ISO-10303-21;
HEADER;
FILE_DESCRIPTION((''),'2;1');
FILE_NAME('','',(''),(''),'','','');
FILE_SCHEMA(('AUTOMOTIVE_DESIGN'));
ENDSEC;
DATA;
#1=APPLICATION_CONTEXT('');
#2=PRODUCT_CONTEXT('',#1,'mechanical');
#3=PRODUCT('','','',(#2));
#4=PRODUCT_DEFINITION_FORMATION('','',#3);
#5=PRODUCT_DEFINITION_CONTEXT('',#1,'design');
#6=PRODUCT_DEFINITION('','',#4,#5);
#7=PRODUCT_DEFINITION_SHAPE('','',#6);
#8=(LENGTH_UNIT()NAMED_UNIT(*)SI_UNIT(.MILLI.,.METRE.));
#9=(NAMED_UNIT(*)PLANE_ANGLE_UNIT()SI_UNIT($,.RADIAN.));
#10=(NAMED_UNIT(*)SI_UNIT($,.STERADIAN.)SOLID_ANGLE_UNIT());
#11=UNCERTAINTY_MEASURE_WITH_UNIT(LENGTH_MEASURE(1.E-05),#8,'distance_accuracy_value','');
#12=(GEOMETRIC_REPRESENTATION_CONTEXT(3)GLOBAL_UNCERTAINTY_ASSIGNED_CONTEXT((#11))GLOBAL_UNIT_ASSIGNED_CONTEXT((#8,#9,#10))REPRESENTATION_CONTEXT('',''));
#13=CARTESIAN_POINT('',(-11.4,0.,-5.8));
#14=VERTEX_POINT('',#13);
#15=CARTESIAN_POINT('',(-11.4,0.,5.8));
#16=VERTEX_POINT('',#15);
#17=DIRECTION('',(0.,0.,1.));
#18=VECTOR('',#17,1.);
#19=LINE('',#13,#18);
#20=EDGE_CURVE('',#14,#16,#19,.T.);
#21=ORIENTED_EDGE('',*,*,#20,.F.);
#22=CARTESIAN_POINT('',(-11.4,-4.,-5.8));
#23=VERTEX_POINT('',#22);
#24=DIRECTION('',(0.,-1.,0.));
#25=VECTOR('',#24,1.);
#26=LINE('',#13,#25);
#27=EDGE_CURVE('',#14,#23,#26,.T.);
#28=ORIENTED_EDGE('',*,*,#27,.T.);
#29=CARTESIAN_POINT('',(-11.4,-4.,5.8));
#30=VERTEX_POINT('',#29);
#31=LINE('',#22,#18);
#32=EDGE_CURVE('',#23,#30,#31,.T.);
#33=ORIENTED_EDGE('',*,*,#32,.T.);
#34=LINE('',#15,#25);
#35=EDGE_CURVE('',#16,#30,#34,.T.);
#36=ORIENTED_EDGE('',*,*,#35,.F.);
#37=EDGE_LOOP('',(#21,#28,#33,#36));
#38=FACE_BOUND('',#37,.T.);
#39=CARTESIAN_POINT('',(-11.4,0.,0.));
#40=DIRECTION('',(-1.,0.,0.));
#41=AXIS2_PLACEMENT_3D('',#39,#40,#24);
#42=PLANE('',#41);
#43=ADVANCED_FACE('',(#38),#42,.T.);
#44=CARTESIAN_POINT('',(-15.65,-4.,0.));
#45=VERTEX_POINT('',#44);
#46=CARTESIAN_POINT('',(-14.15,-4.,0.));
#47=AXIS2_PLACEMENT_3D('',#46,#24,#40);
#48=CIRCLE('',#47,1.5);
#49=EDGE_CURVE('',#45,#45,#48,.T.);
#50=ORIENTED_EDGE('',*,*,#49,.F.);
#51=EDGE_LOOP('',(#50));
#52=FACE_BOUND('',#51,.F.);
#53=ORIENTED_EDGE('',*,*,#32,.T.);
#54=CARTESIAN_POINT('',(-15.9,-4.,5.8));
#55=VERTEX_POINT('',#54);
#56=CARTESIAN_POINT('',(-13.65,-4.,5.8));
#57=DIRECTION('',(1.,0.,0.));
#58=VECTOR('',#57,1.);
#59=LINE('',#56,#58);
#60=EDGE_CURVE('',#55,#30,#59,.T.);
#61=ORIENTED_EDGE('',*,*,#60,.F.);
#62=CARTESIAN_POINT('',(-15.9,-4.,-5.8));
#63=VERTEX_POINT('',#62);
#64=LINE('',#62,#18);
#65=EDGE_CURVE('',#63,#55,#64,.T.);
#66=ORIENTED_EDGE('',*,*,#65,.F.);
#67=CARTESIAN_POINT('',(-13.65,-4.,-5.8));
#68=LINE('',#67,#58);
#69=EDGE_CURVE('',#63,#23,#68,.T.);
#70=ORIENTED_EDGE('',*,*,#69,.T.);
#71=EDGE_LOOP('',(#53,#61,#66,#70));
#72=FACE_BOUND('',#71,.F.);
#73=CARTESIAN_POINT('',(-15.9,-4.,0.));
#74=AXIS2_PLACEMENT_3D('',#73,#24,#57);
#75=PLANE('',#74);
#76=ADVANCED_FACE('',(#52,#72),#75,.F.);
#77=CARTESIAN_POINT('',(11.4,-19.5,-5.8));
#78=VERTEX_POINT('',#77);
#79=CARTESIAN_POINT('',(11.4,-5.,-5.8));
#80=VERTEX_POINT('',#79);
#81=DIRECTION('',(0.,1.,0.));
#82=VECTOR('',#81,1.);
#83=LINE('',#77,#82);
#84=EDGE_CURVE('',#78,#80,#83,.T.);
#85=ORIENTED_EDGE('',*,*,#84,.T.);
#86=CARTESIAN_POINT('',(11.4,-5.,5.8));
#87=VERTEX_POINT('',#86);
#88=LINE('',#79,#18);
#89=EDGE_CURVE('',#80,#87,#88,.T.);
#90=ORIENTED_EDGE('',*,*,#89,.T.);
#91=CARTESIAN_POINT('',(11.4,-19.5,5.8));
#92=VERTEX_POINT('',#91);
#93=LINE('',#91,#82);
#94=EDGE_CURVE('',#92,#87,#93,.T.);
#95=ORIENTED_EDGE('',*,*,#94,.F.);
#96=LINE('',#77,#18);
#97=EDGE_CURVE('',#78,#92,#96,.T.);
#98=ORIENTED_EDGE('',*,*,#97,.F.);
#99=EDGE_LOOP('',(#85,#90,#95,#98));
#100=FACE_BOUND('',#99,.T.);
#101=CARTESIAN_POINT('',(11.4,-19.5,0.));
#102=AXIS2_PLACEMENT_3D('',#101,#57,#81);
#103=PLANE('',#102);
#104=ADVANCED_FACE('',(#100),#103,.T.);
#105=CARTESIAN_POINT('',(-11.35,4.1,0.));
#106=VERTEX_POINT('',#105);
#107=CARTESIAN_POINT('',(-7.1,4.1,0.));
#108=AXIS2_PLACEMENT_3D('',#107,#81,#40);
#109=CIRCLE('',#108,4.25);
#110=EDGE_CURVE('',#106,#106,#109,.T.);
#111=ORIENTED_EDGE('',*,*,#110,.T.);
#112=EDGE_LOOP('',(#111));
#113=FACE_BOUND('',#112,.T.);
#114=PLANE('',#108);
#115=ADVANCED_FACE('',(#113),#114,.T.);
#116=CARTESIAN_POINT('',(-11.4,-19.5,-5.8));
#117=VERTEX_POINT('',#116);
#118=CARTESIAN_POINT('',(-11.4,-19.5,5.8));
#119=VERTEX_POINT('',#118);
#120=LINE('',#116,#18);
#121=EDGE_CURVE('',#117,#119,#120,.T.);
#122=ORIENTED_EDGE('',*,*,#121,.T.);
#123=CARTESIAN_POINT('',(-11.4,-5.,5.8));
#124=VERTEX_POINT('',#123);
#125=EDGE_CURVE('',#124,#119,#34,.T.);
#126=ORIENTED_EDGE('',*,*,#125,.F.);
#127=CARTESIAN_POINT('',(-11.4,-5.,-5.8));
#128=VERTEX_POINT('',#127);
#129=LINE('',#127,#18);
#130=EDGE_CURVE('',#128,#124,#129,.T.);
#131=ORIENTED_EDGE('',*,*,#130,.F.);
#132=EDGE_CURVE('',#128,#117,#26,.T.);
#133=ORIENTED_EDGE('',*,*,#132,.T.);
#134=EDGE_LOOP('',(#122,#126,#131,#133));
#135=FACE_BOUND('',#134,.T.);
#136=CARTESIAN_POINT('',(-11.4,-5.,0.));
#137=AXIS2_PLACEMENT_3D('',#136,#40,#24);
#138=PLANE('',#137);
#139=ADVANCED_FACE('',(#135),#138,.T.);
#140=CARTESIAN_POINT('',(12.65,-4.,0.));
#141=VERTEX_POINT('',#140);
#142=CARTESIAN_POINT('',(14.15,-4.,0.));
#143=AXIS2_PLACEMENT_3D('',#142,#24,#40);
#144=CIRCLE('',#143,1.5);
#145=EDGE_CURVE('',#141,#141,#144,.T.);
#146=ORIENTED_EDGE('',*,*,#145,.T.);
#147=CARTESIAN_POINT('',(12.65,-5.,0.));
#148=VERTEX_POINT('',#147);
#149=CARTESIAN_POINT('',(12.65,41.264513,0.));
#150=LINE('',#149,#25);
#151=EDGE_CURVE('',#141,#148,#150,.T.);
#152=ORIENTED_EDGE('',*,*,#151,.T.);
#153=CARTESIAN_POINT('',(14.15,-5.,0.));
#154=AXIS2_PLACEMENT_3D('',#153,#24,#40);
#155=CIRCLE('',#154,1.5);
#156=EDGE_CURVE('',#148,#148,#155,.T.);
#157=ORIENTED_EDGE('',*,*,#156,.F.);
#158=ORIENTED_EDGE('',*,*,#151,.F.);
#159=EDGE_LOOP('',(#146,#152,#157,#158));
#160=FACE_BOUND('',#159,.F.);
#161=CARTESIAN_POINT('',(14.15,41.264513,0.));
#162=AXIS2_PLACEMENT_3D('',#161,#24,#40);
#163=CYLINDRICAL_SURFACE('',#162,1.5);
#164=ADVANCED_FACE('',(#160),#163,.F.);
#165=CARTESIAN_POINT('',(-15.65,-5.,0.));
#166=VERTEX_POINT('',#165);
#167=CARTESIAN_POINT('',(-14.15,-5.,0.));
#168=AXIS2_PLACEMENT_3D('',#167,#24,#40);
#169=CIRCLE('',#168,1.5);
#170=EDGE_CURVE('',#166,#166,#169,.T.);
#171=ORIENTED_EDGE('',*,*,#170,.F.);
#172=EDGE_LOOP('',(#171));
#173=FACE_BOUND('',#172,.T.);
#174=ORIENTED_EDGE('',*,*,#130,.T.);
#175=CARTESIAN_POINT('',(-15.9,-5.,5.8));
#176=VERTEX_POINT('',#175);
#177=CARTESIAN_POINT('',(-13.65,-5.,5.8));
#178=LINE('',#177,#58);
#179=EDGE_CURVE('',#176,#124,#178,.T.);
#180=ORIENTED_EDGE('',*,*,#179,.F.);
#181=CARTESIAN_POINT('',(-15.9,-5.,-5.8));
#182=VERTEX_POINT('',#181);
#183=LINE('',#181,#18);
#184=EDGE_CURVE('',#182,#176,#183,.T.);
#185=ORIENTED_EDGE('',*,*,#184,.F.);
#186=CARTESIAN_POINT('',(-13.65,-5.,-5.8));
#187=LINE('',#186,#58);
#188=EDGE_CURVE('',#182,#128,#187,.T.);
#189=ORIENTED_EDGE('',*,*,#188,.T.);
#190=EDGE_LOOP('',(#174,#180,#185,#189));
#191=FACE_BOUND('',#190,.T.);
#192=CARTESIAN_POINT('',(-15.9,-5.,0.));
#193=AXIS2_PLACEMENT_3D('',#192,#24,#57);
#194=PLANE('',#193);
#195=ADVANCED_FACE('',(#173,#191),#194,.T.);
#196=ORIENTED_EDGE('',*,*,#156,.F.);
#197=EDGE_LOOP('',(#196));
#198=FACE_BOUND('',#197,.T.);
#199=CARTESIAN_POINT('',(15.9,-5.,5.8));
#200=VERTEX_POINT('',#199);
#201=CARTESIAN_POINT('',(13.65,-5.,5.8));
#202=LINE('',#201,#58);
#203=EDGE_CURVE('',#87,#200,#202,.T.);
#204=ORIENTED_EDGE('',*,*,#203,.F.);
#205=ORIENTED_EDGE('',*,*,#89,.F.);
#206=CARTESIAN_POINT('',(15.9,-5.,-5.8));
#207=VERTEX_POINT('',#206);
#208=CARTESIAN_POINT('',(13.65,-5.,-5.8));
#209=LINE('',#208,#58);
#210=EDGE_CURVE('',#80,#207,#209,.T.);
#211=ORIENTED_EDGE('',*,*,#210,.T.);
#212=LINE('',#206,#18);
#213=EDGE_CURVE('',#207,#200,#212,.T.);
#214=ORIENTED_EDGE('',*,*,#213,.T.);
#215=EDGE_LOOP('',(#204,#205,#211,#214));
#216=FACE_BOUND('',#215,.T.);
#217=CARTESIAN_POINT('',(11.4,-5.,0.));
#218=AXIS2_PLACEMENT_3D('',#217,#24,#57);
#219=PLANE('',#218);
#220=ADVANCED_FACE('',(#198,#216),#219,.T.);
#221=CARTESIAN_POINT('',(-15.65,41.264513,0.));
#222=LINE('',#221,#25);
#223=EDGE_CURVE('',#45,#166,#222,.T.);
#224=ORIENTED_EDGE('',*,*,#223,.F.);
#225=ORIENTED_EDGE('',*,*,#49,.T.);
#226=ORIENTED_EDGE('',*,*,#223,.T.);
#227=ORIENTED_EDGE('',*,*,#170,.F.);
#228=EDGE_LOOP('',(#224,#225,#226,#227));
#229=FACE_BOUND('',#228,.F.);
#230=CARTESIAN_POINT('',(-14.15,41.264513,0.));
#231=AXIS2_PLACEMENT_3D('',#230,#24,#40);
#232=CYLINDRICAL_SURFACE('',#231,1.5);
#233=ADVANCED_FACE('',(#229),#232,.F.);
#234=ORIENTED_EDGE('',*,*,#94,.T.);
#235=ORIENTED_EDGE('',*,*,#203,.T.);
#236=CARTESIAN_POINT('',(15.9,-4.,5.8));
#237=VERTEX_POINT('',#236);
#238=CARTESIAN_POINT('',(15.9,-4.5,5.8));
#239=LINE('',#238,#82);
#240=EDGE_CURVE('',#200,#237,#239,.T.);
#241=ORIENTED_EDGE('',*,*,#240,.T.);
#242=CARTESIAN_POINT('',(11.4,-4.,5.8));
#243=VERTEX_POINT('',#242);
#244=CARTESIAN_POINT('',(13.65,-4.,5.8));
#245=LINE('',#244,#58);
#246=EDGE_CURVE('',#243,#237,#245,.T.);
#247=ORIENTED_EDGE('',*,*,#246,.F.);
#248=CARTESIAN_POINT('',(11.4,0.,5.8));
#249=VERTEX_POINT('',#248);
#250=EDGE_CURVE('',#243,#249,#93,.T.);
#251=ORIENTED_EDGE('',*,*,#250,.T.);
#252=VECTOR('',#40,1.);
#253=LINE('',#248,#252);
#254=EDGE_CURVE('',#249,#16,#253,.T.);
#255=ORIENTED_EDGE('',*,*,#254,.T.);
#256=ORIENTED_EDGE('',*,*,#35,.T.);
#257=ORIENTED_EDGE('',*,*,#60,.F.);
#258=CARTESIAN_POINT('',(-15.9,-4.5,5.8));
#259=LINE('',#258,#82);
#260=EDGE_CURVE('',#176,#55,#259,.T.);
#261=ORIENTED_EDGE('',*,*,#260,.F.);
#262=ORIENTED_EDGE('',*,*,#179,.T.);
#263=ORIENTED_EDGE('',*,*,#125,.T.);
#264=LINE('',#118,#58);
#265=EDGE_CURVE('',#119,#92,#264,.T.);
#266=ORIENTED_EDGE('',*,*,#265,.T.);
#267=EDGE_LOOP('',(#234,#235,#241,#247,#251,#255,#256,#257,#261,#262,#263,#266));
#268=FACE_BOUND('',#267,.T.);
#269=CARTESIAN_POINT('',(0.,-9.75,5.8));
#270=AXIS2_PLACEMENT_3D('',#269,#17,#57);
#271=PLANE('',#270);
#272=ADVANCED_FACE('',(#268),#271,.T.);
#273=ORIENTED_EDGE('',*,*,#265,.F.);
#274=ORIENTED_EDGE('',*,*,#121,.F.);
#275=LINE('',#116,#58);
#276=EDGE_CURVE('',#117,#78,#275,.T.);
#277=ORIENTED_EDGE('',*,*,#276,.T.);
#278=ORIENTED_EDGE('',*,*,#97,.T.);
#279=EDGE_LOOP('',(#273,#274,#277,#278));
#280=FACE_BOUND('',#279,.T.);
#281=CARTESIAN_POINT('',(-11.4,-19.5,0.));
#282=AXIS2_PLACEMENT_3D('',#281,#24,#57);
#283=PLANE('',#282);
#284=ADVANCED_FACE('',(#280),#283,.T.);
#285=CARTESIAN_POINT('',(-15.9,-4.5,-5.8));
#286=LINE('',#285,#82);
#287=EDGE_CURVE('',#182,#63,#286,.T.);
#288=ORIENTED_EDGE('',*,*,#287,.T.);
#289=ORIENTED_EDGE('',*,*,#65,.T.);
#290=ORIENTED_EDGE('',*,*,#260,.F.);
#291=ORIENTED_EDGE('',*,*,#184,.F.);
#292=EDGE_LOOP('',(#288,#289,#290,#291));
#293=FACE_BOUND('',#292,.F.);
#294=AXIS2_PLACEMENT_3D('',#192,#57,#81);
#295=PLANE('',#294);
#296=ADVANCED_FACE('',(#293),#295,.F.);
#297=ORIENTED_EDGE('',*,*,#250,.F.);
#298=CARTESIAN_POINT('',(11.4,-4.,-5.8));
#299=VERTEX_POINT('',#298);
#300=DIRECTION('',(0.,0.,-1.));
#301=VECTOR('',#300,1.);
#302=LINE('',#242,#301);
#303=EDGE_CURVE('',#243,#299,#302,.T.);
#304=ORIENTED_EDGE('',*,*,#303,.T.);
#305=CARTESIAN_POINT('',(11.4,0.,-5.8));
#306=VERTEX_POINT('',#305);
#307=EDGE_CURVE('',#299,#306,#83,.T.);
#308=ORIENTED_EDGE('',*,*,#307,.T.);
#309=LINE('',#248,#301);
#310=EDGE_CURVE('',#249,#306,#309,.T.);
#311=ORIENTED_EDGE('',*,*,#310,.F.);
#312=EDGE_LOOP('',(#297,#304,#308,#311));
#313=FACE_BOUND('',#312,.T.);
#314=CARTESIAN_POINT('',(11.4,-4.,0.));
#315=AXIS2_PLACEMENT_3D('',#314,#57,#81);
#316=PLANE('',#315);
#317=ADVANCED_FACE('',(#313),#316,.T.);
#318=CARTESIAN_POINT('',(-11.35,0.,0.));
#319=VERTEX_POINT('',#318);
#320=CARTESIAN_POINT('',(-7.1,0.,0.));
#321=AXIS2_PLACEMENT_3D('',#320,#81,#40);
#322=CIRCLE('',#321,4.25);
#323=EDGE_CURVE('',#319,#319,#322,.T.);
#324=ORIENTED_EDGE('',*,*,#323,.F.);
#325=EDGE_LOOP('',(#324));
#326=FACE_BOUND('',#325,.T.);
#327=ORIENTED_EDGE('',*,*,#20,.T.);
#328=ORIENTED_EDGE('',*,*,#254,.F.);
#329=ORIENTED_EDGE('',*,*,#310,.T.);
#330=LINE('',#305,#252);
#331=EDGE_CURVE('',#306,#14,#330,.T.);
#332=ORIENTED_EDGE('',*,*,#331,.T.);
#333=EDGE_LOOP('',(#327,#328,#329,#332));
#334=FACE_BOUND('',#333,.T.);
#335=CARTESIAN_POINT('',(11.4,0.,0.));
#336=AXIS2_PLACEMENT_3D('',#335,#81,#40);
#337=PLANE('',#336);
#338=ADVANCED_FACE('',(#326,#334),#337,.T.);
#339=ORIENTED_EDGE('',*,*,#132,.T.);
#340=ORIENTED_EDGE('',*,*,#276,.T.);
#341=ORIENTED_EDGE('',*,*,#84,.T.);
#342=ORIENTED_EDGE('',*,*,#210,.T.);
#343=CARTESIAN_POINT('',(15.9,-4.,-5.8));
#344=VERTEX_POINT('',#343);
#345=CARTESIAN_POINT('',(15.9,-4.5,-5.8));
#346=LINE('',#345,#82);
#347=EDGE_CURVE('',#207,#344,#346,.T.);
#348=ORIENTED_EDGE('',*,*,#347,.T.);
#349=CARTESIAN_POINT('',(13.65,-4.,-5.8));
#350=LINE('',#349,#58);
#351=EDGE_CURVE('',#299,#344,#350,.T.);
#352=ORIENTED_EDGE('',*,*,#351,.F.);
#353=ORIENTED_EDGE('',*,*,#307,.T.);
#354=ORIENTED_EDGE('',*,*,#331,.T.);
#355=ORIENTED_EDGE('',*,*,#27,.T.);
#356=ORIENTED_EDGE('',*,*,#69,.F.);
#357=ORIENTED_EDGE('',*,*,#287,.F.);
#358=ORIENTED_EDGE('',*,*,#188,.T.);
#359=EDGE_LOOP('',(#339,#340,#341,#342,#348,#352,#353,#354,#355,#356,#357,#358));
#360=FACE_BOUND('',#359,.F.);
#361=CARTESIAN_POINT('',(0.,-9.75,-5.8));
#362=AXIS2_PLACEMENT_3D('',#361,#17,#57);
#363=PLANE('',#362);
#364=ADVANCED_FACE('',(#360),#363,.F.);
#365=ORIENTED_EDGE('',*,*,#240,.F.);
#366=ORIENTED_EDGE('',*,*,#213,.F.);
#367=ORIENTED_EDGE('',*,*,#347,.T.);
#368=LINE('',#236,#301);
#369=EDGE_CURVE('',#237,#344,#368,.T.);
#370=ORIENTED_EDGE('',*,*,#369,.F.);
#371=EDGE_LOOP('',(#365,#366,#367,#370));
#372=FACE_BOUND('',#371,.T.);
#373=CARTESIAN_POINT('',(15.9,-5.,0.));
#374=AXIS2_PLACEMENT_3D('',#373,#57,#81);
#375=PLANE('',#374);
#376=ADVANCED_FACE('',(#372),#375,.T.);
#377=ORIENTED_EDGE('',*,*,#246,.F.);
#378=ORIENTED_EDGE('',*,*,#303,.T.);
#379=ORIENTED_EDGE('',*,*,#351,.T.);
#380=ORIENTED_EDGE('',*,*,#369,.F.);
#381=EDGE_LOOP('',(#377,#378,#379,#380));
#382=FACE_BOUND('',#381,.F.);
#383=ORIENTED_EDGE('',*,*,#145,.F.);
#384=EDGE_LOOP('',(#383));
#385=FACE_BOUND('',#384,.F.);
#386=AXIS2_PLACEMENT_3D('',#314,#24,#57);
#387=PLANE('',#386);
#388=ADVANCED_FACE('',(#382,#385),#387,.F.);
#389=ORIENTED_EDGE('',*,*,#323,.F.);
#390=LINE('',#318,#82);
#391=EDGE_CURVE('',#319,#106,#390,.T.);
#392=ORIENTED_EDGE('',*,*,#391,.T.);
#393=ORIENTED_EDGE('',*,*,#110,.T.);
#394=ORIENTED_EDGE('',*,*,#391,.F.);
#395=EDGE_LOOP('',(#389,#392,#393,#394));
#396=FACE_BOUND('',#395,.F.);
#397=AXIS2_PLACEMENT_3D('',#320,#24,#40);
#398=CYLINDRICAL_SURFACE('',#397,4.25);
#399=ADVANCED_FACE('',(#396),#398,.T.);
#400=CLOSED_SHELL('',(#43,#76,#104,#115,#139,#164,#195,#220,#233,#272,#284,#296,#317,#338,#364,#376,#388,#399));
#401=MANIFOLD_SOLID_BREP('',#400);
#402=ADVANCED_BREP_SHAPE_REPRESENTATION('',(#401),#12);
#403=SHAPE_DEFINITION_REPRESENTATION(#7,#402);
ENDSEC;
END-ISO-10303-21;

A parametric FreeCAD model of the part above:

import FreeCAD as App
import Part
import Sketcher

V = App.Vector

doc = App.newDocument("Part")
body = doc.addObject("PartDesign::Body", "Body")

# Sketch on XY plane
sketch1 = doc.addObject("Sketcher::SketchObject", "Sketch")
body.addObject(sketch1)
sketch1.AttachmentSupport = (doc.XY_Plane, [""])
sketch1.MapMode = "FlatFace"
sketch1.addGeometry([
    Part.LineSegment(V(11.4, 0, 0), V(-11.4, 0, 0)),  # 0
    Part.LineSegment(V(-11.4, 0, 0), V(-11.4, -4, 0)),  # 1
    Part.LineSegment(V(-11.4, -4, 0), V(-15.9, -4, 0)),  # 2
    Part.LineSegment(V(-15.9, -4, 0), V(-15.9, -5, 0)),  # 3
    Part.LineSegment(V(-15.9, -5, 0), V(-11.4, -5, 0)),  # 4
    Part.LineSegment(V(-11.4, -5, 0), V(-11.4, -19.5, 0)),  # 5
    Part.LineSegment(V(-11.4, -19.5, 0), V(11.4, -19.5, 0)),  # 6
    Part.LineSegment(V(11.4, -19.5, 0), V(11.4, -5, 0)),  # 7
    Part.LineSegment(V(11.4, -5, 0), V(15.9, -5, 0)),  # 8
    Part.LineSegment(V(15.9, -5, 0), V(15.9, -4, 0)),  # 9
    Part.LineSegment(V(15.9, -4, 0), V(11.4, -4, 0)),  # 10
    Part.LineSegment(V(11.4, -4, 0), V(11.4, 0, 0)),  # 11
], False)
sketch1.addConstraint([
    Sketcher.Constraint("Coincident", 0, 2, 1, 1),
    Sketcher.Constraint("Coincident", 1, 2, 2, 1),
    Sketcher.Constraint("Coincident", 2, 2, 3, 1),
    Sketcher.Constraint("Coincident", 3, 2, 4, 1),
    Sketcher.Constraint("Coincident", 4, 2, 5, 1),
    Sketcher.Constraint("Coincident", 5, 2, 6, 1),
    Sketcher.Constraint("Coincident", 6, 2, 7, 1),
    Sketcher.Constraint("Coincident", 7, 2, 8, 1),
    Sketcher.Constraint("Coincident", 8, 2, 9, 1),
    Sketcher.Constraint("Coincident", 9, 2, 10, 1),
    Sketcher.Constraint("Coincident", 10, 2, 11, 1),
    Sketcher.Constraint("Coincident", 11, 2, 0, 1),
    Sketcher.Constraint("Horizontal", 0),
    Sketcher.Constraint("Vertical", 1),
    Sketcher.Constraint("Horizontal", 2),
    Sketcher.Constraint("Vertical", 3),
    Sketcher.Constraint("Horizontal", 4),
    Sketcher.Constraint("Vertical", 5),
    Sketcher.Constraint("Horizontal", 6),
    Sketcher.Constraint("Vertical", 7),
    Sketcher.Constraint("Horizontal", 8),
    Sketcher.Constraint("Vertical", 9),
    Sketcher.Constraint("Horizontal", 10),
    Sketcher.Constraint("Vertical", 11),
    Sketcher.Constraint("Symmetric", 0, 2, 11, 2, -1, 1),
    Sketcher.Constraint("Symmetric", 4, 2, 7, 2, -2),
    Sketcher.Constraint("Symmetric", 2, 2, 9, 2, -2),
    Sketcher.Constraint("Vertical", 1, 2, 4, 2),
    Sketcher.Constraint("DistanceY", 1, 2, 1, 1, 4.0),
    Sketcher.Constraint("DistanceY", 3, 2, 3, 1, 1.0),
    Sketcher.Constraint("DistanceX", 0, 2, 0, 1, 22.8),
    Sketcher.Constraint("DistanceX", 2, 2, 2, 1, 4.5),
    Sketcher.Constraint("DistanceY", 5, 2, 5, 1, 14.5),
])
pad1 = doc.addObject("PartDesign::Pad", "Pad")
body.addObject(pad1)
pad1.Profile = sketch1
pad1.Length = 11.6
pad1.Midplane = True

# Sketch on XZ plane
sketch2 = doc.addObject("Sketcher::SketchObject", "Sketch001")
body.addObject(sketch2)
sketch2.AttachmentSupport = (doc.XZ_Plane, [""])
sketch2.MapMode = "FlatFace"
sketch2.addGeometry(Part.Circle(V(-7.1, 0, 0), V(0, 0, 1), 4.2), False)
sketch2.addConstraint([
    Sketcher.Constraint("PointOnObject", 0, 3, -1),
    Sketcher.Constraint("Diameter", 0, 8.5),
    Sketcher.Constraint("DistanceX", 0, 3, -1, 1, 7.1),
])
pad2 = doc.addObject("PartDesign::Pad", "Pad001")
body.addObject(pad2)
pad2.Profile = sketch2
pad2.Length = 4.1
pad2.Reversed = True

# Sketch on XZ plane
sketch3 = doc.addObject("Sketcher::SketchObject", "Sketch002")
body.addObject(sketch3)
sketch3.AttachmentSupport = (doc.XZ_Plane, [""])
sketch3.MapMode = "FlatFace"
sketch3.addGeometry([
    Part.Circle(V(14.2, 0, 0), V(0, 0, 1), 1.5),
    Part.Circle(V(-14.2, 0, 0), V(0, 0, 1), 1.5),
], False)
sketch3.addConstraint([
    Sketcher.Constraint("Equal", 0, 1),
    Sketcher.Constraint("Symmetric", 0, 3, 1, 3, -1, 1),
    Sketcher.Constraint("PointOnObject", 0, 3, -1),
    Sketcher.Constraint("Diameter", 0, 3.0),
    Sketcher.Constraint("DistanceX", 1, 3, 0, 3, 28.3),
])
doc.recompute()
hole = doc.addObject("PartDesign::Hole", "Hole")
body.addObject(hole)
hole.Profile = sketch3
hole.ThreadType = "None"
hole.Diameter = 3
hole.DepthType = "ThroughAll"
hole.Reversed = True

doc.recompute()
